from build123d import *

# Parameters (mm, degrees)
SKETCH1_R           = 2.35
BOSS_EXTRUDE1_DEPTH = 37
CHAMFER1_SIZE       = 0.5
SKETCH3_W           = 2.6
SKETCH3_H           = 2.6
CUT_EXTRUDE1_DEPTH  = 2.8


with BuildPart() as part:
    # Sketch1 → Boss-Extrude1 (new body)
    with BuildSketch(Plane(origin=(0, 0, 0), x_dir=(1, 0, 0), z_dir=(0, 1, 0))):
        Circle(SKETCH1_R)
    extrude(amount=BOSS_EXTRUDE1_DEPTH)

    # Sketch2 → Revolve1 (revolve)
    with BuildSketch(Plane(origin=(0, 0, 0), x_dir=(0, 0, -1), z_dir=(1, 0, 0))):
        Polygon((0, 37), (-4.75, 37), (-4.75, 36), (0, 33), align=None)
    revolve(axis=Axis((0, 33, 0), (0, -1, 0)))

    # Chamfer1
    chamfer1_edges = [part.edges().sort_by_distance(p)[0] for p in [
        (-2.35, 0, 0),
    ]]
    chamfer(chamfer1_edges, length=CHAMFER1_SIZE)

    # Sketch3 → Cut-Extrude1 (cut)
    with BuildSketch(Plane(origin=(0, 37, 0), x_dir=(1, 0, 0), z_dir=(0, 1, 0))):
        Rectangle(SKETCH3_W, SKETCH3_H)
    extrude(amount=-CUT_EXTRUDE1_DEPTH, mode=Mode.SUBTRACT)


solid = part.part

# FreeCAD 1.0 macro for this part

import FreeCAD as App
import Part
import Sketcher

V = App.Vector
Q = App.Units.Quantity


def edges_at(feature, points):
    """Names of the edges that pass closest to the given points."""
    edges = feature.Shape.Edges
    near = lambda p: min(range(len(edges)), key=lambda i: edges[i].distToShape(Part.Vertex(*p))[0])
    return sorted({f"Edge{near(p) + 1}" for p in points})


def add_polygon(sketch, points):
    """Adds a closed chain of lines whose ends are joined by coincident constraints."""
    first, n = sketch.GeometryCount, len(points)
    for a, b in zip(points, points[1:] + points[:1]):
        sketch.addGeometry(Part.LineSegment(App.Vector(*a, 0), App.Vector(*b, 0)), False)
    for i in range(n):
        sketch.addConstraint(Sketcher.Constraint("Coincident", first + i, 2, first + (i + 1) % n, 1))

doc = App.newDocument("Part")
body = doc.addObject("PartDesign::Body", "Body")

# Sketch on XZ plane
sketch1 = body.newObject("Sketcher::SketchObject", "Sketch")
sketch1.AttachmentSupport = (doc.getObject("XZ_Plane"), [""])
sketch1.MapMode = "FlatFace"
sketch1.addGeometry(Part.Circle(V(0, 0, 0), V(0, 0, 1), 2.4), False)
sketch1.addConstraint(Sketcher.Constraint("Coincident", 0, 3, -1, 1))
sketch1.addConstraint(Sketcher.Constraint("Diameter", 0, Q("4.7 mm")))
pad1 = body.newObject("PartDesign::Pad", "Pad")
pad1.Profile = sketch1
pad1.Length = 37
pad1.Reversed = True

# Sketch on YZ plane
sketch2 = body.newObject("Sketcher::SketchObject", "Sketch001")
sketch2.AttachmentSupport = (doc.getObject("YZ_Plane"), [""])
sketch2.MapMode = "FlatFace"
add_polygon(sketch2, [(37, 0), (37, 4.8), (36, 4.8), (33, 0)])  # lines 0-3
sketch2.addConstraint(Sketcher.Constraint("Vertical", 0))
sketch2.addConstraint(Sketcher.Constraint("Horizontal", 1))
sketch2.addConstraint(Sketcher.Constraint("Horizontal", 3))
sketch2.addConstraint(Sketcher.Constraint("PointOnObject", 2, 2, -1))
sketch2.addConstraint(Sketcher.Constraint("DistanceX", 1, 2, 1, 1, Q("1 mm")))
sketch2.addConstraint(Sketcher.Constraint("DistanceX", 3, 1, 3, 2, Q("4 mm")))
sketch2.addConstraint(Sketcher.Constraint("DistanceX", -1, 1, 0, 2, Q("37 mm")))
sketch2.addConstraint(Sketcher.Constraint("DistanceY", 0, 1, 0, 2, Q("4.75 mm")))
revolution = body.newObject("PartDesign::Revolution", "Revolution")
revolution.Profile = sketch2
revolution.ReferenceAxis = (sketch2, ["H_Axis"])
revolution.Angle = 360
doc.recompute()

chamfer = body.newObject("PartDesign::Chamfer", "Chamfer")
chamfer.Base = (revolution, edges_at(revolution, [(-2.35, 0, 0)]))
chamfer.Size = 0.5

# Sketch on XZ plane
sketch3 = body.newObject("Sketcher::SketchObject", "Sketch002")
sketch3.AttachmentSupport = (doc.getObject("XZ_Plane"), [""])
sketch3.MapMode = "FlatFace"
sketch3.AttachmentOffset = App.Placement(V(0, 0, -37), App.Rotation())
add_polygon(sketch3, [(-1.3, -1.3), (-1.3, 1.3), (1.3, 1.3), (1.3, -1.3)])  # lines 0-3
sketch3.addConstraint(Sketcher.Constraint("Vertical", 0))
sketch3.addConstraint(Sketcher.Constraint("Horizontal", 1))
sketch3.addConstraint(Sketcher.Constraint("Vertical", 2))
sketch3.addConstraint(Sketcher.Constraint("Horizontal", 3))
sketch3.addConstraint(Sketcher.Constraint("Symmetric", 0, 2, 2, 2, -1, 1))
sketch3.addConstraint(Sketcher.Constraint("Equal", 3, 0))
sketch3.addConstraint(Sketcher.Constraint("DistanceX", 1, 1, 1, 2, Q("2.6 mm")))
pocket1 = body.newObject("PartDesign::Pocket", "Pocket")
pocket1.Profile = sketch3
pocket1.Length = 2.8
pocket1.Reversed = True

doc.recompute()
